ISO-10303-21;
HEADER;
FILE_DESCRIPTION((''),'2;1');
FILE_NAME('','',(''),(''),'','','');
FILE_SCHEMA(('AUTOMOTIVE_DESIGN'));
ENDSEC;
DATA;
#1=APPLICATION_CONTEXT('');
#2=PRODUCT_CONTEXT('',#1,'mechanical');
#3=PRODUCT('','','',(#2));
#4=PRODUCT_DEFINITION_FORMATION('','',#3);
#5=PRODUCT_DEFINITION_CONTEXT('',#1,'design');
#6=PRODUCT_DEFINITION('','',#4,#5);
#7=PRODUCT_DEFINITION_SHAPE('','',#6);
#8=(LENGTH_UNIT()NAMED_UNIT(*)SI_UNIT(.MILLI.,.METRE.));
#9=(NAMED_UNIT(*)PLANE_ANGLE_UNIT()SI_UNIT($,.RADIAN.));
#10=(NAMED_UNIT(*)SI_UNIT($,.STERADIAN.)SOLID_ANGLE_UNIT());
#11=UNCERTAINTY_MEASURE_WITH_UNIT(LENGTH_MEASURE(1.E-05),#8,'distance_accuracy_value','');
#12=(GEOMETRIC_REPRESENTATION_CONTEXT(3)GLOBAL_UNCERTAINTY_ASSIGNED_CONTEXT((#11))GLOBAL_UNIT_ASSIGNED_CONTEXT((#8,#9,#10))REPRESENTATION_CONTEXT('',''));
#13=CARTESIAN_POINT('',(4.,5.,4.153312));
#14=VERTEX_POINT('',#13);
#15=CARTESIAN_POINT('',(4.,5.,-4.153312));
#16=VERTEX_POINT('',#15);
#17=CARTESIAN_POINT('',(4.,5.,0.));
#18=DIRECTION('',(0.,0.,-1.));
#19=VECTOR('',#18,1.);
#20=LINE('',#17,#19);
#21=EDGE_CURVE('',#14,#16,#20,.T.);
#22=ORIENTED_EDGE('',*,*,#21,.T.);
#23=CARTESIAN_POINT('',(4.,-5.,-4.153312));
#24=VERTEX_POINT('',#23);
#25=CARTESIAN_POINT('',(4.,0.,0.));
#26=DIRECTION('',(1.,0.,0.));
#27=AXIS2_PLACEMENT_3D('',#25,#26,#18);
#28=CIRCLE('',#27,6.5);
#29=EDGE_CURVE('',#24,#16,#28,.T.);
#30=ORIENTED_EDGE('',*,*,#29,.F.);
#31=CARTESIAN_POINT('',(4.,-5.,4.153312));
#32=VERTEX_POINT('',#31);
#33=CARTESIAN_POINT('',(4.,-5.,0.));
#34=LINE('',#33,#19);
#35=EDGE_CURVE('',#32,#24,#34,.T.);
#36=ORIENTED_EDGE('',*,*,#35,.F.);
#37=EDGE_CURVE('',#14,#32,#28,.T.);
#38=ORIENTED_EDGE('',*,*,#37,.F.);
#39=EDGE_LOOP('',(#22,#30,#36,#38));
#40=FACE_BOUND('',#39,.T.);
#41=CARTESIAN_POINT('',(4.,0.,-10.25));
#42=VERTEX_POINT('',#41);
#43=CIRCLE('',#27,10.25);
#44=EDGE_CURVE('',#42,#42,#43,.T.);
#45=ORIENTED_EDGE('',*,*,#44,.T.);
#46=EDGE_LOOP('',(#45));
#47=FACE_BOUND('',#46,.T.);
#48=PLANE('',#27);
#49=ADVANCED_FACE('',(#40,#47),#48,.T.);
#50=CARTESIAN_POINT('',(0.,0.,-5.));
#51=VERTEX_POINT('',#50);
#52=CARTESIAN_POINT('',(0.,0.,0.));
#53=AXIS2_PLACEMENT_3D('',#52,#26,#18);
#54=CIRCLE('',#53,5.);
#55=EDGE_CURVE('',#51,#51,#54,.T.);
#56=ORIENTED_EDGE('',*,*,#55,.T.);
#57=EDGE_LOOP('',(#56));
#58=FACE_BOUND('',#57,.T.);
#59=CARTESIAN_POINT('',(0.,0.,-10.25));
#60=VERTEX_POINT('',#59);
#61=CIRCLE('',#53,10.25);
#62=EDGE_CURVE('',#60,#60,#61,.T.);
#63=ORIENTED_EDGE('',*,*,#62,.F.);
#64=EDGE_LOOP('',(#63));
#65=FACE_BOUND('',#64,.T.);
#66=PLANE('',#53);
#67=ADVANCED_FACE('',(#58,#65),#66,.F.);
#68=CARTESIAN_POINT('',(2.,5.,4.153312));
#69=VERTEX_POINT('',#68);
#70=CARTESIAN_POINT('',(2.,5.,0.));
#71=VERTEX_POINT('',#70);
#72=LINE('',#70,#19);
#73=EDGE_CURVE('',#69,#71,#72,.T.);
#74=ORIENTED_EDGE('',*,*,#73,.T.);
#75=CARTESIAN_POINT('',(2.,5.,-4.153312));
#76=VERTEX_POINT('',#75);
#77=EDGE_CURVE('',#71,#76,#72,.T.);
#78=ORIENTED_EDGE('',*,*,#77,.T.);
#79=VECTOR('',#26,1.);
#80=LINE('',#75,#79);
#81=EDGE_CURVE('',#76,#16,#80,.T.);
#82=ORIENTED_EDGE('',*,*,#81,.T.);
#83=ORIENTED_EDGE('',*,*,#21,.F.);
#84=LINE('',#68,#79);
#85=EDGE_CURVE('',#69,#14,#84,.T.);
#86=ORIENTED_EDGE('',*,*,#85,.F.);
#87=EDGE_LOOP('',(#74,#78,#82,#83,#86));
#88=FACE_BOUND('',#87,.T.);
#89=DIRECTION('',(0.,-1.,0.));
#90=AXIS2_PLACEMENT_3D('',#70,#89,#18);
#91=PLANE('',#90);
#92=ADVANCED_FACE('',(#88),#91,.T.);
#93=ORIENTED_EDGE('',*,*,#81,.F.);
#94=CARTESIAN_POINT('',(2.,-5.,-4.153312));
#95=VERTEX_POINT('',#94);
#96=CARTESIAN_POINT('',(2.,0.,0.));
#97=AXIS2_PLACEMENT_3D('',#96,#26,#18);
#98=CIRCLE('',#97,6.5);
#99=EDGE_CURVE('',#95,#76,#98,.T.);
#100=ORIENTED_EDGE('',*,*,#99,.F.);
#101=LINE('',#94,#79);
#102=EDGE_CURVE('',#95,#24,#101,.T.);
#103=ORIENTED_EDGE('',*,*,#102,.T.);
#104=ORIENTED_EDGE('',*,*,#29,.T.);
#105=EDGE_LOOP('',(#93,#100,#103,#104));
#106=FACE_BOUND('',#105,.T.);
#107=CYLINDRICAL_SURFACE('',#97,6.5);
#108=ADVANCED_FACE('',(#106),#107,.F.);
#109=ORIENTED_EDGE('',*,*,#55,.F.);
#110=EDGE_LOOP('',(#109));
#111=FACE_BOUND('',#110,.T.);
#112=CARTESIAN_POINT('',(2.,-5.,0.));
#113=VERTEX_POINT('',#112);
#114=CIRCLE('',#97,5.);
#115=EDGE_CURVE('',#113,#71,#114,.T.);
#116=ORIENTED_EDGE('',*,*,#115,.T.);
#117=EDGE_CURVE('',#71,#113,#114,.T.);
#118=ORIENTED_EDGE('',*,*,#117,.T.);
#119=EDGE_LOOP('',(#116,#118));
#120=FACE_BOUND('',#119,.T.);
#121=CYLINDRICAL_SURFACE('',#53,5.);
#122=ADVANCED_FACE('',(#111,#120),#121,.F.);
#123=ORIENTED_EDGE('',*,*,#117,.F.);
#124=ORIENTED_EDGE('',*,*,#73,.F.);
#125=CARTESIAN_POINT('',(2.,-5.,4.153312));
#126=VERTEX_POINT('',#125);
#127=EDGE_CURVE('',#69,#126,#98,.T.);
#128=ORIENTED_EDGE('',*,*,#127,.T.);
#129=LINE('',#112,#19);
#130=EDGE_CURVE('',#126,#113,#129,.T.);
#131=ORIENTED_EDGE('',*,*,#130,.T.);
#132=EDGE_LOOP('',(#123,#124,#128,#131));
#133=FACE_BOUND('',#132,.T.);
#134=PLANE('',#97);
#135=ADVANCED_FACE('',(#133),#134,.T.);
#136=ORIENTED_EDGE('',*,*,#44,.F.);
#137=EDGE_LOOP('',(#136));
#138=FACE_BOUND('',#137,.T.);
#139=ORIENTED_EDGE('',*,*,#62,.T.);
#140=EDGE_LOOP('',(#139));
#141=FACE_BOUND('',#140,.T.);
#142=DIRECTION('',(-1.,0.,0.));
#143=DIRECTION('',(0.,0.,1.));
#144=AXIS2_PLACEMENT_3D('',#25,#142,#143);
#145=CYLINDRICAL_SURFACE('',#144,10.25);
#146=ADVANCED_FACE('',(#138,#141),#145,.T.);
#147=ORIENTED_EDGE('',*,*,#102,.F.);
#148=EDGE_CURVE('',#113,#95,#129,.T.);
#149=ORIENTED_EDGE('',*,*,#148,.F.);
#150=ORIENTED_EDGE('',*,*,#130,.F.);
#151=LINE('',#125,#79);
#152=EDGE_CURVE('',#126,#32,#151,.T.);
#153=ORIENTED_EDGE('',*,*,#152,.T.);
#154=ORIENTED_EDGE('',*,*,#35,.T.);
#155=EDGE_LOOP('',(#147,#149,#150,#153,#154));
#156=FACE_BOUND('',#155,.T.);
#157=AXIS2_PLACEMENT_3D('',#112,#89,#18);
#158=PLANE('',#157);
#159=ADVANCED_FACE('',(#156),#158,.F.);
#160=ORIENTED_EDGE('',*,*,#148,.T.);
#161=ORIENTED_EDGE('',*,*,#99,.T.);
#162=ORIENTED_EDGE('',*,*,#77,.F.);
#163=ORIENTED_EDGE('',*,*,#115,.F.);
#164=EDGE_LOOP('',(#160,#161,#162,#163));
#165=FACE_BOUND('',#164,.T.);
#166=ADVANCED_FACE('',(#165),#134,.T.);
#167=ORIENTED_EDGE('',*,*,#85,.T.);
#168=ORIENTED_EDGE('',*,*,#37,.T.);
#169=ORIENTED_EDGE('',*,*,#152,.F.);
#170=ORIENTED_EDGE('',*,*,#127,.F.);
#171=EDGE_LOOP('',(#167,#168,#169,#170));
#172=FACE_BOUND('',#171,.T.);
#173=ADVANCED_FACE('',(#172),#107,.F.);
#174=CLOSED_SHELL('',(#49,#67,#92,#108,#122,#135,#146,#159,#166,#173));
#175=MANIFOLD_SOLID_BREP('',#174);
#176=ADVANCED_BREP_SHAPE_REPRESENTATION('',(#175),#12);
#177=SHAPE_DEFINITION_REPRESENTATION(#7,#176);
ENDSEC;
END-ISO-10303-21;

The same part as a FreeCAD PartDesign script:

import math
import FreeCAD as App
import Part
import Sketcher

V = App.Vector

doc = App.newDocument("Part")
body = doc.addObject("PartDesign::Body", "Body")

sketch1 = body.newObject("Sketcher::SketchObject", "Sketch")
sketch1.AttachmentSupport = (doc.getObject("YZ_Plane"), [""])
sketch1.MapMode = "FlatFace"
sketch1.addGeometry(Part.Circle(V(0, 0, 0), V(0, 0, 1), 10.25), False)
sketch1.addConstraint(Sketcher.Constraint("Coincident", 0, 3, -1, 1))
sketch1.addConstraint(Sketcher.Constraint("Diameter", 0, 20.5))
pad1 = body.newObject("PartDesign::Pad", "Pad")
pad1.Profile = sketch1
pad1.Length = 4

sketch2 = body.newObject("Sketcher::SketchObject", "Sketch001")
sketch2.AttachmentSupport = (doc.getObject("YZ_Plane"), [""])
sketch2.MapMode = "FlatFace"
sketch2.AttachmentOffset = App.Placement(V(0, 0, 4), App.Rotation())
sketch2.addGeometry(Part.ArcOfCircle(Part.Circle(V(0, 0, 0), V(0, 0, 1), 6.5), math.radians(39.715137), math.radians(140.284863)), False)
sketch2.addGeometry(Part.LineSegment(V(-5, 4.153312, 0), V(-5, -4.153312, 0)), False)
sketch2.addGeometry(Part.ArcOfCircle(Part.Circle(V(0, 0, 0), V(0, 0, 1), 6.5), math.radians(-140.284863), math.radians(-90)), False)
sketch2.addGeometry(Part.ArcOfCircle(Part.Circle(V(0, 0, 0), V(0, 0, 1), 6.5), math.radians(-90), math.radians(-39.715137)), False)
sketch2.addGeometry(Part.LineSegment(V(5, -4.153312, 0), V(5, 4.153312, 0)), False)
sketch2.addConstraint(Sketcher.Constraint("Coincident", 0, 2, 1, 1))
sketch2.addConstraint(Sketcher.Constraint("Coincident", 1, 2, 2, 1))
sketch2.addConstraint(Sketcher.Constraint("Tangent", 2, 2, 3, 1))
sketch2.addConstraint(Sketcher.Constraint("Coincident", 3, 2, 4, 1))
sketch2.addConstraint(Sketcher.Constraint("Coincident", 4, 2, 0, 1))
sketch2.addConstraint(Sketcher.Constraint("Vertical", 1))
sketch2.addConstraint(Sketcher.Constraint("Vertical", 4))
sketch2.addConstraint(Sketcher.Constraint("Coincident", 0, 3, -1, 1))
sketch2.addConstraint(Sketcher.Constraint("Coincident", 2, 3, -1, 1))
sketch2.addConstraint(Sketcher.Constraint("Equal", 0, 2))
sketch2.addConstraint(Sketcher.Constraint("Equal", 2, 3))
sketch2.addConstraint(Sketcher.Constraint("PointOnObject", 2, 2, -2))
sketch2.addConstraint(Sketcher.Constraint("Horizontal", 1, 2, 3, 2))
sketch2.addConstraint(Sketcher.Constraint("Radius", 0, 6.5))
sketch2.addConstraint(Sketcher.Constraint("DistanceX", 0, 2, -1, 1, 5.0))
pocket1 = body.newObject("PartDesign::Pocket", "Pocket")
pocket1.Profile = sketch2
pocket1.Length = 2

sketch3 = body.newObject("Sketcher::SketchObject", "Sketch002")
sketch3.AttachmentSupport = (doc.getObject("YZ_Plane"), [""])
sketch3.MapMode = "FlatFace"
sketch3.AttachmentOffset = App.Placement(V(0, 0, 2), App.Rotation())
sketch3.addGeometry(Part.Circle(V(0, 0, 0), V(0, 0, 1), 5), False)
sketch3.addConstraint(Sketcher.Constraint("Coincident", 0, 3, -1, 1))
sketch3.addConstraint(Sketcher.Constraint("Diameter", 0, 10.0))
pocket2 = body.newObject("PartDesign::Pocket", "Pocket001")
pocket2.Profile = sketch3
pocket2.Type = "ThroughAll"

doc.recompute()
